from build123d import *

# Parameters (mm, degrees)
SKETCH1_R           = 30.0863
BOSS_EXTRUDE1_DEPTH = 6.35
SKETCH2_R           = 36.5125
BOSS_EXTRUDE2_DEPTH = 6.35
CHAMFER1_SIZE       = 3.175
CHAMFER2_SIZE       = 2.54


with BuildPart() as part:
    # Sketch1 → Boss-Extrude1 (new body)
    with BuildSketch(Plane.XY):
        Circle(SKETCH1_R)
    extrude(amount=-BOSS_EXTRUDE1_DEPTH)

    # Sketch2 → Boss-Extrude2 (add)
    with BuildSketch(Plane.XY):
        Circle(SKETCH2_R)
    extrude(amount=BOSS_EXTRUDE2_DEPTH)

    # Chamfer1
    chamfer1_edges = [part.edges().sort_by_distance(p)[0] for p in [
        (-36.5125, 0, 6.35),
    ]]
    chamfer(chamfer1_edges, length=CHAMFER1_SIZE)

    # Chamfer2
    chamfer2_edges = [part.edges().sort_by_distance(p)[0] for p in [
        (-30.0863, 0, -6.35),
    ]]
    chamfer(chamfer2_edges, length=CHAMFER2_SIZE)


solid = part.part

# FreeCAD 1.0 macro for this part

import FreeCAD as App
import Part
import Sketcher

V = App.Vector
Q = App.Units.Quantity


def edges_at(feature, points):
    """Names of the edges that pass closest to the given points."""
    edges = feature.Shape.Edges
    near = lambda p: min(range(len(edges)), key=lambda i: edges[i].distToShape(Part.Vertex(*p))[0])
    return sorted({f"Edge{near(p) + 1}" for p in points})

doc = App.newDocument("Part")
body = doc.addObject("PartDesign::Body", "Body")

sketch1 = doc.addObject("Sketcher::SketchObject", "Sketch")
body.addObject(sketch1)
sketch1.AttachmentSupport = (doc.XY_Plane, [""])
sketch1.MapMode = "FlatFace"
sketch1.addGeometry(Part.Circle(V(0, 0, 0), V(0, 0, 1), 30), False)
sketch1.addConstraint(Sketcher.Constraint("Coincident", 0, 3, -1, 1))
sketch1.addConstraint(Sketcher.Constraint("Diameter", 0, Q("2.369 in")))
pad1 = doc.addObject("PartDesign::Pad", "Pad")
body.addObject(pad1)
pad1.Profile = sketch1
pad1.Length = Q("0.25 in")
pad1.Reversed = True

sketch2 = doc.addObject("Sketcher::SketchObject", "Sketch001")
body.addObject(sketch2)
sketch2.AttachmentSupport = (doc.XY_Plane, [""])
sketch2.MapMode = "FlatFace"
sketch2.addGeometry(Part.Circle(V(0, 0, 0), V(0, 0, 1), 37), False)
sketch2.addConstraint(Sketcher.Constraint("Coincident", 0, 3, -1, 1))
sketch2.addConstraint(Sketcher.Constraint("Diameter", 0, Q("2.875 in")))
pad2 = doc.addObject("PartDesign::Pad", "Pad001")
body.addObject(pad2)
pad2.Profile = sketch2
pad2.Length = Q("0.25 in")
doc.recompute()

chamfer = doc.addObject("PartDesign::Chamfer", "Chamfer")
body.addObject(chamfer)
chamfer.Base = (pad2, edges_at(pad2, [(-36.513, 0, 6.35)]))
chamfer.Size = Q("0.125 in")
doc.recompute()

chamfer2 = doc.addObject("PartDesign::Chamfer", "Chamfer001")
body.addObject(chamfer2)
chamfer2.Base = (chamfer, edges_at(chamfer, [(-30.086, 0, -6.35)]))
chamfer2.Size = Q("0.1 in")

doc.recompute()
